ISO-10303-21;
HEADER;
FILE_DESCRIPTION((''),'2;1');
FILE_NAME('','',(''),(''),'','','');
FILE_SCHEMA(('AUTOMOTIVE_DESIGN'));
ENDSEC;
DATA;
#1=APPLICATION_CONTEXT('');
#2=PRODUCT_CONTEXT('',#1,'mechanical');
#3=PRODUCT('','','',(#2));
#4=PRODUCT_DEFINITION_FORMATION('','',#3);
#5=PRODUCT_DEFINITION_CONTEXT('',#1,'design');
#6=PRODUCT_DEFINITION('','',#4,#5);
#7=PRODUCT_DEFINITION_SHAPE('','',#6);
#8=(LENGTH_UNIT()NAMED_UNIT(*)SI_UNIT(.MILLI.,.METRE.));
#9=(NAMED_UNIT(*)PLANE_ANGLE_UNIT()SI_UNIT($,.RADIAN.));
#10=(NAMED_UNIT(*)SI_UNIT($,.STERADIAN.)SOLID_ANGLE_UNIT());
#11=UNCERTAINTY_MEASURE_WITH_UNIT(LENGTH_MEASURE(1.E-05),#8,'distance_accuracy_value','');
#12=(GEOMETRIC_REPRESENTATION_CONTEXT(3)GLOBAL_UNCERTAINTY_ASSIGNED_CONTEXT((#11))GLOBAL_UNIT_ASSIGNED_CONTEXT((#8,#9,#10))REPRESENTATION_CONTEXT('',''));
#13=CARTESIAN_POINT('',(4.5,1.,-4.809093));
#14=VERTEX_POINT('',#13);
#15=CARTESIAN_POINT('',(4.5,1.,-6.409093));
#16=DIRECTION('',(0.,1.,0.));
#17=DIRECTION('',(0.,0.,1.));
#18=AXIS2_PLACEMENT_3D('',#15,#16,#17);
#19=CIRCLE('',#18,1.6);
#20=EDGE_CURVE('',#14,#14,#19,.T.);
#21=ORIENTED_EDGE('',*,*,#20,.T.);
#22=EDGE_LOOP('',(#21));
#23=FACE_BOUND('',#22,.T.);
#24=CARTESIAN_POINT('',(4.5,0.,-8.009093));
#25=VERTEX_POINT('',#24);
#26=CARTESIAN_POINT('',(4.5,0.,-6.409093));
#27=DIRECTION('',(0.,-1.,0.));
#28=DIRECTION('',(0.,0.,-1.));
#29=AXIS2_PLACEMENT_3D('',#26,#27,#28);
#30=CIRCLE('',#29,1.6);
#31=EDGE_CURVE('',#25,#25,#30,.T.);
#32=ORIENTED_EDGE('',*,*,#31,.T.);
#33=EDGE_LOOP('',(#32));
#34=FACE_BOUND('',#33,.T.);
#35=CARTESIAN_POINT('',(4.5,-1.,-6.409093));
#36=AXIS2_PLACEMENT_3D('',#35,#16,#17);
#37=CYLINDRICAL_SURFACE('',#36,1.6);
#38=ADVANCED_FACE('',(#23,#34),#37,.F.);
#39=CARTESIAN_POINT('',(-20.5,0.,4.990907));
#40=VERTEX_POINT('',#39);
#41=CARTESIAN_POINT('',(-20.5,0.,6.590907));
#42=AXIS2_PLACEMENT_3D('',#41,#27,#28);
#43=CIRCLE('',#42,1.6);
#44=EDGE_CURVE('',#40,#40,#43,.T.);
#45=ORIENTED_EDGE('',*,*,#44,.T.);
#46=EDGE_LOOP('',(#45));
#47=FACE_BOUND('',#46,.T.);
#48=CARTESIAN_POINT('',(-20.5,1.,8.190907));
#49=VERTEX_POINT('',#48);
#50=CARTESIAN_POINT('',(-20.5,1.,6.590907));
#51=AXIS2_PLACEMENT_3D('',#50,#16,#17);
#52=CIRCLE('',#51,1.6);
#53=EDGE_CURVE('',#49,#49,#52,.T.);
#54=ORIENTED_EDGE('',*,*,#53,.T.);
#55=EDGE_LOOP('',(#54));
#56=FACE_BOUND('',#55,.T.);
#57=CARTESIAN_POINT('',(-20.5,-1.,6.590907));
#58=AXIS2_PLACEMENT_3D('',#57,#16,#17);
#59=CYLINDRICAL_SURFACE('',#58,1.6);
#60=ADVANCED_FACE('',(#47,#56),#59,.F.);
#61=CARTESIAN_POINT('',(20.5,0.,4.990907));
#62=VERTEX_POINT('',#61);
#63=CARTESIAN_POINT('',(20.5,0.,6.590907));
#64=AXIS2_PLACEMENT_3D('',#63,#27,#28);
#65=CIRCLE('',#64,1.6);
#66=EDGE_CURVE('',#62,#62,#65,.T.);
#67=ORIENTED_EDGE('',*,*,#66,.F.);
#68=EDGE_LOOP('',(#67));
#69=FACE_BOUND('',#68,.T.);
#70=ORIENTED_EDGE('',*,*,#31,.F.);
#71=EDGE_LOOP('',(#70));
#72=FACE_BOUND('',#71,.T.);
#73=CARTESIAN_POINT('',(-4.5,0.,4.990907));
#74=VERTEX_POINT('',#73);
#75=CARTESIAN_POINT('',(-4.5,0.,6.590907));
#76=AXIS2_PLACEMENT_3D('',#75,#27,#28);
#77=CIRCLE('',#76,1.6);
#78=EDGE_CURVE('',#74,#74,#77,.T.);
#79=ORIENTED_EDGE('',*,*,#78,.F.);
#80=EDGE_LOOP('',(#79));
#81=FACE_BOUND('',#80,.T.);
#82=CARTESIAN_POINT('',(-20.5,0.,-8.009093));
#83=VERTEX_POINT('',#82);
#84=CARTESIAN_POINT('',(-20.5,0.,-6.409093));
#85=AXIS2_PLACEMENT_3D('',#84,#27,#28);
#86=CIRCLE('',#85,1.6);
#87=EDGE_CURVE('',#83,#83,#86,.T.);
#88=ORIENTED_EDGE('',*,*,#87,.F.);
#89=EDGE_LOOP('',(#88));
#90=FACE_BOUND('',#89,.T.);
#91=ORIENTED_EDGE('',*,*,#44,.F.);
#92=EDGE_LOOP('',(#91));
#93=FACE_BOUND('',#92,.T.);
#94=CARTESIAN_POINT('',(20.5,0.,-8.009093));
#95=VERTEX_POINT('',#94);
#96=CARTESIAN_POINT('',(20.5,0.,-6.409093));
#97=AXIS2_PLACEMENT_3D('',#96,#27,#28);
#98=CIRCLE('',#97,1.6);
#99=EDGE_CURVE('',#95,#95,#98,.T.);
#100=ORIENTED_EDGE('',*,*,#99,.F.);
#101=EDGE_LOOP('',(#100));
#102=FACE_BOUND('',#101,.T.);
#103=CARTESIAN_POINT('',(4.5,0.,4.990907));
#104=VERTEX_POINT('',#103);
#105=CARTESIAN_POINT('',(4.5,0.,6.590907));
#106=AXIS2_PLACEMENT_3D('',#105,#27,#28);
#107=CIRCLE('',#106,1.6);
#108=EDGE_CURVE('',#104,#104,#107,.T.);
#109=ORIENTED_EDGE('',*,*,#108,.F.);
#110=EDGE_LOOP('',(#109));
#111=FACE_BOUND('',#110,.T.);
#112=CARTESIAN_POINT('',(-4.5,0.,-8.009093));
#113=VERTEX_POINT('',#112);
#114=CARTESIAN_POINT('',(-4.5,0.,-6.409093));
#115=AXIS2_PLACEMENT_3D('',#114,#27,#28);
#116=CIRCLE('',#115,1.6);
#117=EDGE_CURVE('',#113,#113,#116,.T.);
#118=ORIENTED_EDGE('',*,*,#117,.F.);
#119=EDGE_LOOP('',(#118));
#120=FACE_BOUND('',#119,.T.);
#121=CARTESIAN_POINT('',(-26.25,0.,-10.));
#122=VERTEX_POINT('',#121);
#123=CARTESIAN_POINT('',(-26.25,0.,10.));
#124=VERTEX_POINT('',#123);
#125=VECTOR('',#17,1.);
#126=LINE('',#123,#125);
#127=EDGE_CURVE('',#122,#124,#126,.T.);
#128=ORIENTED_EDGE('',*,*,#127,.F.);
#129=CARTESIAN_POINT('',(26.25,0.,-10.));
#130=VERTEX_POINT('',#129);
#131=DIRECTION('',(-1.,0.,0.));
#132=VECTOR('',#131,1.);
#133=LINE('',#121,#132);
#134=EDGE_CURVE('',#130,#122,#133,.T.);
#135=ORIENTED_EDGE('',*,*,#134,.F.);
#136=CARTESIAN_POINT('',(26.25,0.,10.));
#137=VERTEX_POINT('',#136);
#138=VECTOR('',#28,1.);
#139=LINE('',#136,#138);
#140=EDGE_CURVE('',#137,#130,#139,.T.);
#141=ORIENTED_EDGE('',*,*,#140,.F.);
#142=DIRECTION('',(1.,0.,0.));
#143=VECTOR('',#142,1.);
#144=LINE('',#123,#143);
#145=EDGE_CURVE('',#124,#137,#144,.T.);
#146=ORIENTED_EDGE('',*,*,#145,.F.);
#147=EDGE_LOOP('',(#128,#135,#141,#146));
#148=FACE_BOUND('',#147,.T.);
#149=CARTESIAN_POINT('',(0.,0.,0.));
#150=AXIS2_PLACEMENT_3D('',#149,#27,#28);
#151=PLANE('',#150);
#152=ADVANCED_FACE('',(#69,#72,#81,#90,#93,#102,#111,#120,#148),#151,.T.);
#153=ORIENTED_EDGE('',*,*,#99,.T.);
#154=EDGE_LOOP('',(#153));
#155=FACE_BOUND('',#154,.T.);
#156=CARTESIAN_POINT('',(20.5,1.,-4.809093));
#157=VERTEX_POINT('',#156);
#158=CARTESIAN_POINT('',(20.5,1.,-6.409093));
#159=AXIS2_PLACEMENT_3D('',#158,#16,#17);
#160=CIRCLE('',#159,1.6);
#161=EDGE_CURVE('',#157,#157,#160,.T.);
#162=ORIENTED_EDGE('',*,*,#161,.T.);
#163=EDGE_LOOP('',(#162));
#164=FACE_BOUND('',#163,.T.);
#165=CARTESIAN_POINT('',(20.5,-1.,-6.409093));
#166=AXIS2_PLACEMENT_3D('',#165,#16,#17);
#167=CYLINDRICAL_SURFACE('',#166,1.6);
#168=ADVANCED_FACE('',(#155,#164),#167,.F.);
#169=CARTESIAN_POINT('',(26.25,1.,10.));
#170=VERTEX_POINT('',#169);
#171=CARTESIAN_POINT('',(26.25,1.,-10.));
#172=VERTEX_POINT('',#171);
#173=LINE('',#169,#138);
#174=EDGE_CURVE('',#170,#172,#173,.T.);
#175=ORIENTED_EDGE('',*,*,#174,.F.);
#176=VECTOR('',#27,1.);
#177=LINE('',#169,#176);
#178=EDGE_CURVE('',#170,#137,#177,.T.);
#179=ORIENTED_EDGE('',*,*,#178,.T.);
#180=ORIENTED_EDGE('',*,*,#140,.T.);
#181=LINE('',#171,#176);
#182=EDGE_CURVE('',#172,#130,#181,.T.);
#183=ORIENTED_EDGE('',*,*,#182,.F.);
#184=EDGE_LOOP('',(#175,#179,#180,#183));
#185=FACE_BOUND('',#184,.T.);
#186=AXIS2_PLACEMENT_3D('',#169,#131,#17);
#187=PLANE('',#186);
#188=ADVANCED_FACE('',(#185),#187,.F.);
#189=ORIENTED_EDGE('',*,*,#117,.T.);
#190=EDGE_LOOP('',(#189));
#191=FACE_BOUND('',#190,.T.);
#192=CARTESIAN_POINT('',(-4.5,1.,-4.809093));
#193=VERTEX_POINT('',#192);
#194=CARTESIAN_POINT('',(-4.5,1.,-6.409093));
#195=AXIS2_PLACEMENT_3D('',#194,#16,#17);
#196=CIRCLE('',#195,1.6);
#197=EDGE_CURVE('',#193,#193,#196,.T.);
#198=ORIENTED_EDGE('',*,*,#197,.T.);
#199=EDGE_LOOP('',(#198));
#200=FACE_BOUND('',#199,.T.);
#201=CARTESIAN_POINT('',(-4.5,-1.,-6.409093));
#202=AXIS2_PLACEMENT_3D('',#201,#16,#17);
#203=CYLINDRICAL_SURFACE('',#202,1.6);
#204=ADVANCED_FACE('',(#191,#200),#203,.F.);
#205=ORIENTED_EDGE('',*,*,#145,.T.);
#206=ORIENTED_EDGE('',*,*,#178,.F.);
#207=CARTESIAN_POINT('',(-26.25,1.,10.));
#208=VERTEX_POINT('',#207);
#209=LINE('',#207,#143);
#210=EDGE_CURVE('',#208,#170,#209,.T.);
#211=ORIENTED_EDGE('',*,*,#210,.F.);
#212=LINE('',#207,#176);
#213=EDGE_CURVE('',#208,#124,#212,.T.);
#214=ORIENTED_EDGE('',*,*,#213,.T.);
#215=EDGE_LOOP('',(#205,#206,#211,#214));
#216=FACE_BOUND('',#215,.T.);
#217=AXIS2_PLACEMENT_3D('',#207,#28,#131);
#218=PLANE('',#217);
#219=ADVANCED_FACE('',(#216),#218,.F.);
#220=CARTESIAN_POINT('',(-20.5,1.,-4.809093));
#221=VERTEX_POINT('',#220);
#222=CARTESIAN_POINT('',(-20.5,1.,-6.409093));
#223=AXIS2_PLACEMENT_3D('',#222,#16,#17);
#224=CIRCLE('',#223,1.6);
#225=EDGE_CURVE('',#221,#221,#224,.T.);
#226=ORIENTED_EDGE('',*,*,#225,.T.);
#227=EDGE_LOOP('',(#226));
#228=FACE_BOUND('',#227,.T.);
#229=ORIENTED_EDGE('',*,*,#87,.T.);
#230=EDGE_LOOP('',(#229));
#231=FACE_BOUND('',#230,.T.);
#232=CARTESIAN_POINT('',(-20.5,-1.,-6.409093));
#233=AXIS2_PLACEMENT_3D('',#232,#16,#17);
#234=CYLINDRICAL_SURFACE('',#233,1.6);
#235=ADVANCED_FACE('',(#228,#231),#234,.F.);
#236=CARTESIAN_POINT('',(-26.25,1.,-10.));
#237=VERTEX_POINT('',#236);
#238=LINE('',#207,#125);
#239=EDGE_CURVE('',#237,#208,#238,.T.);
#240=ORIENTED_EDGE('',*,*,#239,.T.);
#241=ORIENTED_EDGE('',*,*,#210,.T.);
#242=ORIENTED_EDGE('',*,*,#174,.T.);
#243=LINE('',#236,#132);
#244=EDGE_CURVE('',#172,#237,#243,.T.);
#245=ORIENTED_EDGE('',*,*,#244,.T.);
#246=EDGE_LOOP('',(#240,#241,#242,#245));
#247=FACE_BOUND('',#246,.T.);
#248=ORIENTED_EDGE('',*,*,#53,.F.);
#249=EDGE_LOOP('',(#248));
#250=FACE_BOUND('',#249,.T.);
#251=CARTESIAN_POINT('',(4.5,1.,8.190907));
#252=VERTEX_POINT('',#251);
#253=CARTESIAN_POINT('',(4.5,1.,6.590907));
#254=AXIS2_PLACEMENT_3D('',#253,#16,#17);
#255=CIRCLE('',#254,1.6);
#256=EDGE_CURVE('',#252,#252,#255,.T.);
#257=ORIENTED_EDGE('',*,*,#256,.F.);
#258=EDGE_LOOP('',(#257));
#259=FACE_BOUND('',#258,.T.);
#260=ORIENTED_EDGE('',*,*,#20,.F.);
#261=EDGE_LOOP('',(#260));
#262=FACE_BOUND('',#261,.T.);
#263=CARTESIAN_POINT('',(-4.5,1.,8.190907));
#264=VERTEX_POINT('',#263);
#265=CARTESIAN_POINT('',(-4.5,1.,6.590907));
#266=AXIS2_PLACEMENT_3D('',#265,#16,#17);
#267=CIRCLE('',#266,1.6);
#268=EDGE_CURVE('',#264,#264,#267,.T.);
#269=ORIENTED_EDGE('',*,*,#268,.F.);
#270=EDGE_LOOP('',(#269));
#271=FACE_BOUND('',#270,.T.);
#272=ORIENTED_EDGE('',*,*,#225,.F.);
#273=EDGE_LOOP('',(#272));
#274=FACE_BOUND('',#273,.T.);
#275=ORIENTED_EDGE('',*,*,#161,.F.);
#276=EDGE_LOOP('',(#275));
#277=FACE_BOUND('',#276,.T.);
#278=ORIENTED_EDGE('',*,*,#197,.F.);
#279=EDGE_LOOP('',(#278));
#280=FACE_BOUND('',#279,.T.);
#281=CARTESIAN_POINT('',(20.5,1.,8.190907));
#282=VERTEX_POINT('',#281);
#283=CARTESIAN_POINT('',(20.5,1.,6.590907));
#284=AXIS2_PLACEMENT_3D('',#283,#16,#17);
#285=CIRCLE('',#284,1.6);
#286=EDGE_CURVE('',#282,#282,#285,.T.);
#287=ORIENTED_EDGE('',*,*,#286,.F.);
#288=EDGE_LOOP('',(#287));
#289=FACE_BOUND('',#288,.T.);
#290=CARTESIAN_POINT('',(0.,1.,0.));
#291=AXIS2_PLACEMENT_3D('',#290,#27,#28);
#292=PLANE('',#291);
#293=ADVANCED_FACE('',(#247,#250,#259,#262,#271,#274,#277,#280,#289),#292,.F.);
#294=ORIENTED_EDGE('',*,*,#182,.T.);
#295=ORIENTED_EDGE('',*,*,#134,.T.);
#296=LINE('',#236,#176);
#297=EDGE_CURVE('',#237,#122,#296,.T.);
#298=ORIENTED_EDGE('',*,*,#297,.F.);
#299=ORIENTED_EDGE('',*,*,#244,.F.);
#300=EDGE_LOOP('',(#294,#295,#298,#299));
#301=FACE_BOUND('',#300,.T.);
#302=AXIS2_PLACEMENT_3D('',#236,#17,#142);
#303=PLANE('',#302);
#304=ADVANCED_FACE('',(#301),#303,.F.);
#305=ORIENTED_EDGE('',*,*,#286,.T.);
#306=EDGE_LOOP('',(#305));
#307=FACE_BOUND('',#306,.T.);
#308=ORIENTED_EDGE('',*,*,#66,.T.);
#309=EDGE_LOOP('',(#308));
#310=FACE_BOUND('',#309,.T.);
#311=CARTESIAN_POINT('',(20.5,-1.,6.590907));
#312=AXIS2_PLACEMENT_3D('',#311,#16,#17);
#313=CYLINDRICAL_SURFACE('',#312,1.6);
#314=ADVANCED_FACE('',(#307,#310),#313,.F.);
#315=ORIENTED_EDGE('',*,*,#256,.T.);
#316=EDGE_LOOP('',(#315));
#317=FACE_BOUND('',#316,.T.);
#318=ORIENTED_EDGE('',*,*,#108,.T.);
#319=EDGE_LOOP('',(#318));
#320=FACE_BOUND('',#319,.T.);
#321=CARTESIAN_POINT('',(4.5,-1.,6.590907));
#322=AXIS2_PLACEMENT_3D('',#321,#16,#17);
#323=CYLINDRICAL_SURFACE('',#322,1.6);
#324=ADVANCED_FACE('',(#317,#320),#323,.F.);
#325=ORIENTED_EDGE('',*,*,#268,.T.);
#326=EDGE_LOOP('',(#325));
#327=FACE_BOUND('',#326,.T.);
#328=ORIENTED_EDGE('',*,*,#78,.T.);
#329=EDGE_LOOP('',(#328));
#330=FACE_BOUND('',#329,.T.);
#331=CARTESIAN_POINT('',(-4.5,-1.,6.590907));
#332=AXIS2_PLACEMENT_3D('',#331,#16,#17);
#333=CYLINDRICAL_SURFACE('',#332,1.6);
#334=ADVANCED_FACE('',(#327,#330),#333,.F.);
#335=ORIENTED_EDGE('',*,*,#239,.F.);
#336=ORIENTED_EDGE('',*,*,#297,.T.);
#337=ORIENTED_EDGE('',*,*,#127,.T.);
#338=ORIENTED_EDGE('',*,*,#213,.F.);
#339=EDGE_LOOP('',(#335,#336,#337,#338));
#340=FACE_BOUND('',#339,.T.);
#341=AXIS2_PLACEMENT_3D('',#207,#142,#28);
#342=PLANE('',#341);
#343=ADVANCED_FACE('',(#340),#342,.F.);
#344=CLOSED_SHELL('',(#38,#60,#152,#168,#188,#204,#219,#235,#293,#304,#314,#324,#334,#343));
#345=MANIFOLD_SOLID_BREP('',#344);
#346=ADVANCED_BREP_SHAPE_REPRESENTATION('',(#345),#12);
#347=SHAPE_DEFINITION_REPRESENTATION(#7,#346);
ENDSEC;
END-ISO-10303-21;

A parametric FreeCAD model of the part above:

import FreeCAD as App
import Part
import Sketcher


def add_polygon(sketch, points):
    """Adds a closed chain of lines whose ends are joined by coincident constraints."""
    first, n = sketch.GeometryCount, len(points)
    for a, b in zip(points, points[1:] + points[:1]):
        sketch.addGeometry(Part.LineSegment(App.Vector(*a, 0), App.Vector(*b, 0)), False)
    for i in range(n):
        sketch.addConstraint(Sketcher.Constraint("Coincident", first + i, 2, first + (i + 1) % n, 1))

doc = App.newDocument("Part")
params = doc.addObject("Spreadsheet::Sheet", "Params")
for row, (alias, value) in enumerate([
    ("sketch1_height", "20 mm"),
    ("sketch1_width", "52.5 mm"),
    ("pad1_length", "1 mm"),
    ("sketch2_diameter", "3.2 mm"),
    ("pocket1_length", "2 mm"),
], start=1):
    params.set(f"A{row}", alias)
    params.set(f"B{row}", "=" + value)
    params.setAlias(f"B{row}", alias)

body = doc.addObject("PartDesign::Body", "Body")

# Sketch on XZ plane
sketch1 = doc.addObject("Sketcher::SketchObject", "Sketch")
body.addObject(sketch1)
sketch1.AttachmentSupport = (doc.XZ_Plane, [""])
sketch1.MapMode = "FlatFace"
add_polygon(sketch1, [(-26, -10), (-26, 10), (26, 10), (26, -10)])  # lines 0-3
sketch1.addConstraint(Sketcher.Constraint("Vertical", 0))
sketch1.addConstraint(Sketcher.Constraint("Horizontal", 1))
sketch1.addConstraint(Sketcher.Constraint("Vertical", 2))
sketch1.addConstraint(Sketcher.Constraint("Horizontal", 3))
sketch1.addConstraint(Sketcher.Constraint("Symmetric", 0, 2, 2, 2, -1, 1))
sketch1.addConstraint(Sketcher.Constraint("DistanceY", 0, 1, 0, 2, 20.0))
sketch1.addConstraint(Sketcher.Constraint("DistanceX", 1, 1, 1, 2, 52.5))
sketch1.setExpression("Constraints[9]", "Params.sketch1_height")
sketch1.setExpression("Constraints[10]", "Params.sketch1_width")
pad1 = doc.addObject("PartDesign::Pad", "Pad")
body.addObject(pad1)
pad1.Profile = sketch1
pad1.setExpression("Length", "Params.pad1_length")
pad1.Reversed = True

# Sketch on XZ plane
sketch2 = doc.addObject("Sketcher::SketchObject", "Sketch001")
body.addObject(sketch2)
sketch2.AttachmentSupport = (doc.XZ_Plane, [""])
sketch2.MapMode = "FlatFace"
sketch2.AttachmentOffset = App.Placement(App.Vector(0, 0, -1), App.Rotation())
sketch2.addGeometry(Part.Circle(App.Vector(-20.5, -6.4, 0), App.Vector(0, 0, 1), 1.6), False)
sketch2.addGeometry(Part.Circle(App.Vector(-4.5, -6.4, 0), App.Vector(0, 0, 1), 1.6), False)
sketch2.addGeometry(Part.Circle(App.Vector(4.5, -6.4, 0), App.Vector(0, 0, 1), 1.6), False)
sketch2.addGeometry(Part.Circle(App.Vector(20.5, -6.4, 0), App.Vector(0, 0, 1), 1.6), False)
sketch2.addGeometry(Part.Circle(App.Vector(-20.5, 6.6, 0), App.Vector(0, 0, 1), 1.6), False)
sketch2.addGeometry(Part.Circle(App.Vector(-4.5, 6.6, 0), App.Vector(0, 0, 1), 1.6), False)
sketch2.addGeometry(Part.Circle(App.Vector(4.5, 6.6, 0), App.Vector(0, 0, 1), 1.6), False)
sketch2.addGeometry(Part.Circle(App.Vector(20.5, 6.6, 0), App.Vector(0, 0, 1), 1.6), False)
sketch2.addConstraint(Sketcher.Constraint("Equal", 0, 1))
sketch2.addConstraint(Sketcher.Constraint("Equal", 1, 2))
sketch2.addConstraint(Sketcher.Constraint("Equal", 2, 3))
sketch2.addConstraint(Sketcher.Constraint("Equal", 3, 4))
sketch2.addConstraint(Sketcher.Constraint("Equal", 4, 5))
sketch2.addConstraint(Sketcher.Constraint("Equal", 5, 6))
sketch2.addConstraint(Sketcher.Constraint("Equal", 6, 7))
sketch2.addConstraint(Sketcher.Constraint("Symmetric", 1, 3, 2, 3, -2))
sketch2.addConstraint(Sketcher.Constraint("Symmetric", 0, 3, 3, 3, -2))
sketch2.addConstraint(Sketcher.Constraint("Symmetric", 5, 3, 6, 3, -2))
sketch2.addConstraint(Sketcher.Constraint("Symmetric", 4, 3, 7, 3, -2))
sketch2.addConstraint(Sketcher.Constraint("Horizontal", 0, 3, 1, 3))
sketch2.addConstraint(Sketcher.Constraint("Horizontal", 4, 3, 5, 3))
sketch2.addConstraint(Sketcher.Constraint("Vertical", 0, 3, 4, 3))
sketch2.addConstraint(Sketcher.Constraint("Vertical", 1, 3, 5, 3))
sketch2.addConstraint(Sketcher.Constraint("Diameter", 0, 3.2))
sketch2.addConstraint(Sketcher.Constraint("DistanceX", 0, 3, 1, 3, 16.0))
sketch2.addConstraint(Sketcher.Constraint("DistanceX", 1, 3, 2, 3, 9.0))
sketch2.addConstraint(Sketcher.Constraint("DistanceY", 0, 3, 4, 3, 13.0))
sketch2.addConstraint(Sketcher.Constraint("DistanceY", 0, 3, -1, 1, 6.409093))
sketch2.setExpression("Constraints[15]", "Params.sketch2_diameter")
pocket1 = doc.addObject("PartDesign::Pocket", "Pocket")
body.addObject(pocket1)
pocket1.Profile = sketch2
pocket1.setExpression("Length", "Params.pocket1_length")
pocket1.Reversed = True

doc.recompute()
